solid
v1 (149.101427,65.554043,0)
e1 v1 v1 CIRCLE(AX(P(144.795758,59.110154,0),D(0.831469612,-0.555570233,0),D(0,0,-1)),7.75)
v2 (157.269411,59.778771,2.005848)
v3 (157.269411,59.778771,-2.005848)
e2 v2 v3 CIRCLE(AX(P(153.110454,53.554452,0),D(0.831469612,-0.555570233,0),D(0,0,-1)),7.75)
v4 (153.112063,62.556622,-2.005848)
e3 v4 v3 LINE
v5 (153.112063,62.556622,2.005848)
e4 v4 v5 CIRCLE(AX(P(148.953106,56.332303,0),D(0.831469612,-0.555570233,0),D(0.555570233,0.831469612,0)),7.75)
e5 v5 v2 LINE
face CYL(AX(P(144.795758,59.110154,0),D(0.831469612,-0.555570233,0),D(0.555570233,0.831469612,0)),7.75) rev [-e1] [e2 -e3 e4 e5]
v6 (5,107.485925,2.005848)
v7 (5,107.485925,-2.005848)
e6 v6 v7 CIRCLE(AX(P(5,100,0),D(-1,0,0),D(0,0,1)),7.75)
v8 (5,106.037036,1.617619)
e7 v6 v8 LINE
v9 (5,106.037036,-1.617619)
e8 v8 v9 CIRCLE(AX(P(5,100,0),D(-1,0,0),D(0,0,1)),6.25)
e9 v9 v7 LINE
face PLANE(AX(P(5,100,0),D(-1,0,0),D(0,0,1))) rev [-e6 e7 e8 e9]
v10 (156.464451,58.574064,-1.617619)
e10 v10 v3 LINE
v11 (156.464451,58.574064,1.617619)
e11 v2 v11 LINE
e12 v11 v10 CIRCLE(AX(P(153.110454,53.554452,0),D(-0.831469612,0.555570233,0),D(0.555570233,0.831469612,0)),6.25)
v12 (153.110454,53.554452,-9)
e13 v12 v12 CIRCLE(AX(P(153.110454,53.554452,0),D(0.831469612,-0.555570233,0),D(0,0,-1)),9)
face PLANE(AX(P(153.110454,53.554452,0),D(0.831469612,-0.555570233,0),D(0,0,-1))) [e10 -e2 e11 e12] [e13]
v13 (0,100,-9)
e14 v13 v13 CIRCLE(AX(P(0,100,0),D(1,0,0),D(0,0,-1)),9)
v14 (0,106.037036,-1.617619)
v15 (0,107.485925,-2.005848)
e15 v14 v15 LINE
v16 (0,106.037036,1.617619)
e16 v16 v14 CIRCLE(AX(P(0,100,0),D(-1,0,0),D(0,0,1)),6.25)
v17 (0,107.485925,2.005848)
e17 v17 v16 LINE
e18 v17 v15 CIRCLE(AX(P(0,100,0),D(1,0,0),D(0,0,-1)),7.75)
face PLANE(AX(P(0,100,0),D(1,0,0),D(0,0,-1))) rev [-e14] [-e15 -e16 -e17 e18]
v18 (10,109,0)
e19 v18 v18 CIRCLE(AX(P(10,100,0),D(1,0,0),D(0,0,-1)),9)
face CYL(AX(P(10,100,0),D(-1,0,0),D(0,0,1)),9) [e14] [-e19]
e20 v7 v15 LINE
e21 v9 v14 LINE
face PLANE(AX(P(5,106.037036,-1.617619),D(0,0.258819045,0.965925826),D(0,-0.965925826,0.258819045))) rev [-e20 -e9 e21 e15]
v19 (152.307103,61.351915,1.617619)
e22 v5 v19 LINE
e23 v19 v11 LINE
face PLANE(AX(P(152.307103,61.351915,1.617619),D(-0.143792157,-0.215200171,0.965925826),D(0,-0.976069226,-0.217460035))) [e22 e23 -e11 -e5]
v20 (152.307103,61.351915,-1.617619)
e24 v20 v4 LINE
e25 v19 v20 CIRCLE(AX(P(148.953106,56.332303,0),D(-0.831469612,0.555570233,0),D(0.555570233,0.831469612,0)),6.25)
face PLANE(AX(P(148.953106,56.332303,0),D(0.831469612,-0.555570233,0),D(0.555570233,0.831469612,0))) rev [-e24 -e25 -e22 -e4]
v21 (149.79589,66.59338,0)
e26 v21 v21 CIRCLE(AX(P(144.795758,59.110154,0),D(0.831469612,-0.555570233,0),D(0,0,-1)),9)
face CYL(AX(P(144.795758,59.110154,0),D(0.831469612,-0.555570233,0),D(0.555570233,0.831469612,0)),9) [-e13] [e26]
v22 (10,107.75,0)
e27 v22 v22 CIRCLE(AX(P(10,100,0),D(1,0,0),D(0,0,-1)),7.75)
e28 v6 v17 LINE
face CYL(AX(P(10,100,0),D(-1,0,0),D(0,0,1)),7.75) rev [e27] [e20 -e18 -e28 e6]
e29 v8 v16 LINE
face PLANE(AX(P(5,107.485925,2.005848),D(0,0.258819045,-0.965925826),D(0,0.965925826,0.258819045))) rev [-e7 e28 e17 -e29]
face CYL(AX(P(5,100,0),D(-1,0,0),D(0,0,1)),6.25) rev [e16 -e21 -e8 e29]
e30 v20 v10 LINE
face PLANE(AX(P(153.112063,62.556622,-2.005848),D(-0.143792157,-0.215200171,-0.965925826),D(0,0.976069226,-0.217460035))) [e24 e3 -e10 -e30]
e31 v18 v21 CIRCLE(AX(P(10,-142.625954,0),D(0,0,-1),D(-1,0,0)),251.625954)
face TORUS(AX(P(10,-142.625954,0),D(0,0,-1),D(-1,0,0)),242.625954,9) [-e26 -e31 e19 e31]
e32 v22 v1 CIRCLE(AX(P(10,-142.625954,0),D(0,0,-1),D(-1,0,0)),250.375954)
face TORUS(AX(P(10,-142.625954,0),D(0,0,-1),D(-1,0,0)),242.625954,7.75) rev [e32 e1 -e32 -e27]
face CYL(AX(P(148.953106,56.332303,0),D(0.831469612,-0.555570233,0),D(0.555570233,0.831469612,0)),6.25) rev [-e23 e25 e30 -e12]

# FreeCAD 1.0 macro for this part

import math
import FreeCAD as App
import Part
import Sketcher

V = App.Vector
Q = App.Units.Quantity

doc = App.newDocument("Part")
body = doc.addObject("PartDesign::Body", "Body")

# Sketch on YZ plane
sketch1 = body.newObject("Sketcher::SketchObject", "Sketch")
sketch1.AttachmentSupport = (doc.getObject("YZ_Plane"), [""])
sketch1.MapMode = "FlatFace"
sketch1.addGeometry(Part.Circle(V(100, 0, 0), V(0, 0, 1), 9), False)
sketch1.addGeometry(Part.Circle(V(100, 0, 0), V(0, 0, 1), 7.75), False)
sketch1.addConstraint(Sketcher.Constraint("Coincident", 1, 3, 0, 3))
sketch1.addConstraint(Sketcher.Constraint("PointOnObject", 0, 3, -1))
sketch1.addConstraint(Sketcher.Constraint("Diameter", 0, 18.0))
sketch1.addConstraint(Sketcher.Constraint("Diameter", 1, 15.5))
sketch1.addConstraint(Sketcher.Constraint("DistanceX", -1, 1, 0, 3, 100.0))

# Sketch on XY plane
sketch2 = body.newObject("Sketcher::SketchObject", "Sketch001")
sketch2.AttachmentSupport = (doc.getObject("XY_Plane"), [""])
sketch2.MapMode = "FlatFace"
sketch2.addGeometry(Part.LineSegment(V(0, 100, 0), V(10, 100, 0)), False)
sketch2.addGeometry(Part.ArcOfCircle(Part.Circle(V(10, -142.625954, 0), V(0, 0, 1), 242.625954), math.radians(56.25), math.radians(90)), False)
sketch2.addGeometry(Part.LineSegment(V(144.795758, 59.110154, 0), V(153.110454, 53.554452, 0)), False)
sketch2.addConstraint(Sketcher.Constraint("Tangent", 0, 2, 1, 2))
sketch2.addConstraint(Sketcher.Constraint("Tangent", 1, 1, 2, 1))
sketch2.addConstraint(Sketcher.Constraint("Horizontal", 0))
sketch2.addConstraint(Sketcher.Constraint("PointOnObject", 0, 1, -2))
sketch2.addConstraint(Sketcher.Constraint("DistanceX", 0, 1, 0, 2, 10.0))
sketch2.addConstraint(Sketcher.Constraint("Distance", 2, 10.0))
sketch2.addConstraint(Sketcher.Constraint("DistanceY", -1, 1, 0, 1, 100.0))
sketch2.addConstraint(Sketcher.Constraint("Angle", 2, Q("-33.75 deg")))
sketch2.addConstraint(Sketcher.Constraint("Radius", 1, 242.625954))
doc.recompute()

additivepipe = body.newObject("PartDesign::AdditivePipe", "AdditivePipe")
additivepipe.Profile = sketch1
additivepipe.Spine = (sketch2, ["Edge1", "Edge2", "Edge3"])

# Sketch on an angled plane
sketch3 = body.newObject("Sketcher::SketchObject", "Sketch002")
sketch3.Placement = App.Placement(V(81.112713, -54.197782, 0), App.Rotation(V(0, 0, -1), V(0.555570233, 0.831469612, 0), V(0.831469612, -0.555570233, 0), "ZXY"))
sketch3.addGeometry(Part.LineSegment(V(-2.005848, 137.078435, 0), V(-1.617619, 135.629546, 0)), False)
sketch3.addGeometry(Part.ArcOfCircle(Part.Circle(V(0, 129.59251, 0), V(0, 0, 1), 6.25), math.radians(75), math.radians(105)), False)
sketch3.addGeometry(Part.LineSegment(V(1.617619, 135.629546, 0), V(2.005848, 137.078435, 0)), False)
sketch3.addGeometry(Part.ArcOfCircle(Part.Circle(V(0, 129.59251, 0), V(0, 0, 1), 7.75), math.radians(75), math.radians(105)), False)
sketch3.addConstraint(Sketcher.Constraint("Coincident", 0, 2, 1, 2))
sketch3.addConstraint(Sketcher.Constraint("Coincident", 1, 1, 2, 1))
sketch3.addConstraint(Sketcher.Constraint("Coincident", 2, 2, 3, 1))
sketch3.addConstraint(Sketcher.Constraint("Coincident", 3, 2, 0, 1))
sketch3.addConstraint(Sketcher.Constraint("Coincident", 3, 3, 1, 3))
sketch3.addConstraint(Sketcher.Constraint("Symmetric", 0, 2, 1, 1, -2))
sketch3.addConstraint(Sketcher.Constraint("Horizontal", 2, 2, 3, 2))
sketch3.addConstraint(Sketcher.Constraint("Angle", 0, Q("-75 deg")))
sketch3.addConstraint(Sketcher.Constraint("Radius", 1, 6.25))
sketch3.addConstraint(Sketcher.Constraint("Radius", 3, 7.75))
sketch3.addConstraint(Sketcher.Constraint("DistanceY", -1, 1, 1, 3, 129.59251))
sketch3.addConstraint(Sketcher.Constraint("DistanceX", 0, 2, -1, 1, 1.617619))
pad1 = body.newObject("PartDesign::Pad", "Pad")
pad1.Profile = sketch3
pad1.Length = 5
pad1.Reversed = True

# Sketch on YZ plane
sketch4 = body.newObject("Sketcher::SketchObject", "Sketch003")
sketch4.AttachmentSupport = (doc.getObject("YZ_Plane"), [""])
sketch4.MapMode = "FlatFace"
sketch4.AttachmentOffset = App.Placement(V(0, 0, 5), App.Rotation())
sketch4.addGeometry(Part.LineSegment(V(107.485925, -2.005848, 0), V(106.037036, -1.617619, 0)), False)
sketch4.addGeometry(Part.ArcOfCircle(Part.Circle(V(100, 0, 0), V(0, 0, 1), 6.25), math.radians(-15), math.radians(15)), False)
sketch4.addGeometry(Part.LineSegment(V(106.037036, 1.617619, 0), V(107.485925, 2.005848, 0)), False)
sketch4.addGeometry(Part.ArcOfCircle(Part.Circle(V(100, 0, 0), V(0, 0, 1), 7.75), math.radians(-15), math.radians(15)), False)
sketch4.addConstraint(Sketcher.Constraint("Coincident", 0, 2, 1, 1))
sketch4.addConstraint(Sketcher.Constraint("Coincident", 1, 2, 2, 1))
sketch4.addConstraint(Sketcher.Constraint("Coincident", 2, 2, 3, 2))
sketch4.addConstraint(Sketcher.Constraint("Coincident", 3, 1, 0, 1))
sketch4.addConstraint(Sketcher.Constraint("Coincident", 3, 3, 1, 3))
sketch4.addConstraint(Sketcher.Constraint("Symmetric", 0, 2, 1, 2, -1))
sketch4.addConstraint(Sketcher.Constraint("Vertical", 2, 2, 3, 1))
sketch4.addConstraint(Sketcher.Constraint("Angle", 0, Q("165 deg")))
sketch4.addConstraint(Sketcher.Constraint("Radius", 1, 6.25))
sketch4.addConstraint(Sketcher.Constraint("Radius", 3, 7.75))
sketch4.addConstraint(Sketcher.Constraint("DistanceX", -1, 1, 1, 3, 100.0))
sketch4.addConstraint(Sketcher.Constraint("DistanceY", 0, 2, -1, 1, 1.617619))
pad2 = body.newObject("PartDesign::Pad", "Pad001")
pad2.Profile = sketch4
pad2.Length = 5
pad2.Reversed = True

doc.recompute()
